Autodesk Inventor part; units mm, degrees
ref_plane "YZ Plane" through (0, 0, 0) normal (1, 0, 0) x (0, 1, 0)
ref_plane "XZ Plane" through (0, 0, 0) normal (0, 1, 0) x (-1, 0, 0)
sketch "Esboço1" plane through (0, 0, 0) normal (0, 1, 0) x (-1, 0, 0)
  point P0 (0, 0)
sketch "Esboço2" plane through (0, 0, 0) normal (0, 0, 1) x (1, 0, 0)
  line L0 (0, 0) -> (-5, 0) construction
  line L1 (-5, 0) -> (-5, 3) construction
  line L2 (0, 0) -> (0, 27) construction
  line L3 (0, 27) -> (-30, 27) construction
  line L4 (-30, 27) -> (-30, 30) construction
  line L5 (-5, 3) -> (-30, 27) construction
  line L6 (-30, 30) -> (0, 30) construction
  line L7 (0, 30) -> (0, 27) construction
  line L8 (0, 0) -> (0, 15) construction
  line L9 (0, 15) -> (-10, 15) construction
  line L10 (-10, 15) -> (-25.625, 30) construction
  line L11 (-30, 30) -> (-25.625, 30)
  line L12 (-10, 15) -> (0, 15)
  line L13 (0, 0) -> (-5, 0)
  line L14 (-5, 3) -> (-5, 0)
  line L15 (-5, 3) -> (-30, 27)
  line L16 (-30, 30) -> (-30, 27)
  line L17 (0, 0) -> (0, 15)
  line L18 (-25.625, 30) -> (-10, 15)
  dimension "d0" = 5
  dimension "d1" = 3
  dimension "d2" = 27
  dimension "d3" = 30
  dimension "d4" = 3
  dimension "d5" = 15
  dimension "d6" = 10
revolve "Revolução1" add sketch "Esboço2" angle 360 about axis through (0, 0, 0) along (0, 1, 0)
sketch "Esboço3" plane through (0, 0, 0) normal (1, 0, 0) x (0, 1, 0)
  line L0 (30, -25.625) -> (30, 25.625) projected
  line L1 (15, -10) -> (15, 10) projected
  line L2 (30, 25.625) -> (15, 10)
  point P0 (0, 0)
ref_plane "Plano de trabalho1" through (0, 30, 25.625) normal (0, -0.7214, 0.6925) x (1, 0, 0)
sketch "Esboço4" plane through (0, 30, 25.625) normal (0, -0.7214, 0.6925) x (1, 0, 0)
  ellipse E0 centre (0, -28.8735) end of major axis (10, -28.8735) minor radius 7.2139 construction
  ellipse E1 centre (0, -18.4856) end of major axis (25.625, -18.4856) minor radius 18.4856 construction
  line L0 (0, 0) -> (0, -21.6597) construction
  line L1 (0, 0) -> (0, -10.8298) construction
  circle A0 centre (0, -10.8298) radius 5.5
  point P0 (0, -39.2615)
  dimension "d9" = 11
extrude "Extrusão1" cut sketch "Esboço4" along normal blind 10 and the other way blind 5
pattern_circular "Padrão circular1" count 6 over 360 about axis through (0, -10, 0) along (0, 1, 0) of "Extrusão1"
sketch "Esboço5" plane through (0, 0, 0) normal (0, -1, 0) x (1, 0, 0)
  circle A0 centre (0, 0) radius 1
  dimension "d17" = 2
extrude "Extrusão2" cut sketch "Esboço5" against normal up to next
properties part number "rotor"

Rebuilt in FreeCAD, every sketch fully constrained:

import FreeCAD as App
import Part
import Sketcher
from FreeCAD import Vector

doc = App.newDocument("Part")
body = doc.addObject("PartDesign::Body", "Body")

sketch1 = doc.addObject("Sketcher::SketchObject", "Sketch")
body.addObject(sketch1)
sketch1.AttachmentSupport = (doc.XY_Plane, [""])
sketch1.MapMode = "FlatFace"
sketch1.addGeometry([
    Part.LineSegment(Vector(-25.625, 30, 0), Vector(-30, 30, 0)),
    Part.LineSegment(Vector(-30, 30, 0), Vector(-30, 27, 0)),
    Part.LineSegment(Vector(-30, 27, 0), Vector(-5, 3, 0)),
    Part.LineSegment(Vector(-5, 3, 0), Vector(-5, 0, 0)),
    Part.LineSegment(Vector(-5, 0, 0), Vector(0, 0, 0)),
    Part.LineSegment(Vector(0, 0, 0), Vector(0, 15, 0)),
    Part.LineSegment(Vector(0, 15, 0), Vector(-10, 15, 0)),
    Part.LineSegment(Vector(-10, 15, 0), Vector(-25.625, 30, 0)),
], False)
sketch1.addConstraint([
    Sketcher.Constraint("Coincident", 0, 2, 1, 1),
    Sketcher.Constraint("Coincident", 1, 2, 2, 1),
    Sketcher.Constraint("Coincident", 2, 2, 3, 1),
    Sketcher.Constraint("Coincident", 3, 2, 4, 1),
    Sketcher.Constraint("Coincident", 4, 2, 5, 1),
    Sketcher.Constraint("Coincident", 5, 2, 6, 1),
    Sketcher.Constraint("Coincident", 6, 2, 7, 1),
    Sketcher.Constraint("Coincident", 7, 2, 0, 1),
    Sketcher.Constraint("Horizontal", 0),
    Sketcher.Constraint("Vertical", 1),
    Sketcher.Constraint("Vertical", 3),
    Sketcher.Constraint("Horizontal", 4),
    Sketcher.Constraint("Vertical", 5),
    Sketcher.Constraint("Horizontal", 6),
    Sketcher.Constraint("Coincident", 4, 2, -1, 1),
    Sketcher.Constraint("Parallel", 2, 7),
    Sketcher.Constraint("Equal", 1, 3),
    Sketcher.Constraint("DistanceX", 4, 1, 4, 2, 5.0),
    Sketcher.Constraint("DistanceX", 6, 2, 6, 1, 10.0),
    Sketcher.Constraint("DistanceY", 1, 2, 1, 1, 3.0),
    Sketcher.Constraint("DistanceY", 5, 1, 5, 2, 15.0),
    Sketcher.Constraint("DistanceX", 0, 2, -1, 1, 30.0),
    Sketcher.Constraint("DistanceY", -1, 1, 0, 2, 30.0),
])
revolution = doc.addObject("PartDesign::Revolution", "Revolution")
body.addObject(revolution)
revolution.Profile = sketch1
revolution.ReferenceAxis = (sketch1, ["V_Axis"])
revolution.Angle = 360

sketch2 = doc.addObject("Sketcher::SketchObject", "Sketch001")
body.addObject(sketch2)
sketch2.Placement = App.Placement(Vector(0, 30, 25.625), App.Rotation(Vector(1, 0, 0), Vector(0, 0.69250893, 0.721409303), Vector(0, -0.721409303, 0.69250893), "ZXY"))
sketch2.addGeometry(Part.Circle(Vector(0, -10.8298, 0), Vector(0, 0, 1), 5.5), False)
sketch2.addConstraint([
    Sketcher.Constraint("PointOnObject", 0, 3, -2),
    Sketcher.Constraint("Diameter", 0, 11.0),
    Sketcher.Constraint("DistanceY", 0, 3, -1, 1, 10.8298),
])
pocket1 = doc.addObject("PartDesign::Pocket", "Pocket")
body.addObject(pocket1)
pocket1.Profile = sketch2
pocket1.Type = "ThroughAll"
pocket1.Midplane = True
doc.recompute()

polarpattern = doc.addObject("PartDesign::PolarPattern", "PolarPattern")
body.addObject(polarpattern)
polarpattern.Originals = [pocket1]
polarpattern.Axis = (doc.Y_Axis, [""])
polarpattern.Angle = 360
polarpattern.Occurrences = 6
body.Tip = polarpattern

sketch3 = doc.addObject("Sketcher::SketchObject", "Sketch002")
body.addObject(sketch3)
sketch3.AttachmentSupport = (doc.XZ_Plane, [""])
sketch3.MapMode = "FlatFace"
sketch3.addGeometry(Part.Circle(Vector(0, 0, 0), Vector(0, 0, 1), 1), False)
sketch3.addConstraint([
    Sketcher.Constraint("Coincident", 0, 3, -1, 1),
    Sketcher.Constraint("Diameter", 0, 2.0),
])
pocket2 = doc.addObject("PartDesign::Pocket", "Pocket001")
body.addObject(pocket2)
pocket2.Profile = sketch3
pocket2.Type = "UpToFirst"

doc.recompute()
